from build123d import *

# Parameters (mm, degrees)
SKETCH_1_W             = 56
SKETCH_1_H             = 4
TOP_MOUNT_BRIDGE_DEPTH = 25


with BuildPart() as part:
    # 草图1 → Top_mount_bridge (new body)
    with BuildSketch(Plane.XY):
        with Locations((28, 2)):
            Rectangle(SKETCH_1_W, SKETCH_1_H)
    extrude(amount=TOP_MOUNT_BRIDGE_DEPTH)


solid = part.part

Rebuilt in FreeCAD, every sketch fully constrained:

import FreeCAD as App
import Part
import Sketcher
from FreeCAD import Vector
Q = App.Units.Quantity


def add_polygon(sketch, points):
    """Adds a closed chain of lines whose ends are joined by coincident constraints."""
    first, n = sketch.GeometryCount, len(points)
    for a, b in zip(points, points[1:] + points[:1]):
        sketch.addGeometry(Part.LineSegment(App.Vector(*a, 0), App.Vector(*b, 0)), False)
    for i in range(n):
        sketch.addConstraint(Sketcher.Constraint("Coincident", first + i, 2, first + (i + 1) % n, 1))

doc = App.newDocument("Part")
body = doc.addObject("PartDesign::Body", "Body")

# Sketch on XY plane
sketch1 = body.newObject("Sketcher::SketchObject", "Sketch")
sketch1.AttachmentSupport = (doc.getObject("XY_Plane"), [""])
sketch1.MapMode = "FlatFace"
add_polygon(sketch1, [(0, 4), (0, 0), (56, 0), (56, 4)])  # lines 0-3
sketch1.addConstraint(Sketcher.Constraint("Vertical", 0))
sketch1.addConstraint(Sketcher.Constraint("Horizontal", 1))
sketch1.addConstraint(Sketcher.Constraint("Vertical", 2))
sketch1.addConstraint(Sketcher.Constraint("Horizontal", 3))
sketch1.addConstraint(Sketcher.Constraint("Coincident", 0, 2, -1, 1))
sketch1.addConstraint(Sketcher.Constraint("DistanceX", 1, 1, 1, 2, Q("56 mm")))
sketch1.addConstraint(Sketcher.Constraint("DistanceY", 0, 2, 0, 1, Q("4 mm")))
pad1 = body.newObject("PartDesign::Pad", "Pad")
pad1.Profile = sketch1
pad1.Length = 25

doc.recompute()
